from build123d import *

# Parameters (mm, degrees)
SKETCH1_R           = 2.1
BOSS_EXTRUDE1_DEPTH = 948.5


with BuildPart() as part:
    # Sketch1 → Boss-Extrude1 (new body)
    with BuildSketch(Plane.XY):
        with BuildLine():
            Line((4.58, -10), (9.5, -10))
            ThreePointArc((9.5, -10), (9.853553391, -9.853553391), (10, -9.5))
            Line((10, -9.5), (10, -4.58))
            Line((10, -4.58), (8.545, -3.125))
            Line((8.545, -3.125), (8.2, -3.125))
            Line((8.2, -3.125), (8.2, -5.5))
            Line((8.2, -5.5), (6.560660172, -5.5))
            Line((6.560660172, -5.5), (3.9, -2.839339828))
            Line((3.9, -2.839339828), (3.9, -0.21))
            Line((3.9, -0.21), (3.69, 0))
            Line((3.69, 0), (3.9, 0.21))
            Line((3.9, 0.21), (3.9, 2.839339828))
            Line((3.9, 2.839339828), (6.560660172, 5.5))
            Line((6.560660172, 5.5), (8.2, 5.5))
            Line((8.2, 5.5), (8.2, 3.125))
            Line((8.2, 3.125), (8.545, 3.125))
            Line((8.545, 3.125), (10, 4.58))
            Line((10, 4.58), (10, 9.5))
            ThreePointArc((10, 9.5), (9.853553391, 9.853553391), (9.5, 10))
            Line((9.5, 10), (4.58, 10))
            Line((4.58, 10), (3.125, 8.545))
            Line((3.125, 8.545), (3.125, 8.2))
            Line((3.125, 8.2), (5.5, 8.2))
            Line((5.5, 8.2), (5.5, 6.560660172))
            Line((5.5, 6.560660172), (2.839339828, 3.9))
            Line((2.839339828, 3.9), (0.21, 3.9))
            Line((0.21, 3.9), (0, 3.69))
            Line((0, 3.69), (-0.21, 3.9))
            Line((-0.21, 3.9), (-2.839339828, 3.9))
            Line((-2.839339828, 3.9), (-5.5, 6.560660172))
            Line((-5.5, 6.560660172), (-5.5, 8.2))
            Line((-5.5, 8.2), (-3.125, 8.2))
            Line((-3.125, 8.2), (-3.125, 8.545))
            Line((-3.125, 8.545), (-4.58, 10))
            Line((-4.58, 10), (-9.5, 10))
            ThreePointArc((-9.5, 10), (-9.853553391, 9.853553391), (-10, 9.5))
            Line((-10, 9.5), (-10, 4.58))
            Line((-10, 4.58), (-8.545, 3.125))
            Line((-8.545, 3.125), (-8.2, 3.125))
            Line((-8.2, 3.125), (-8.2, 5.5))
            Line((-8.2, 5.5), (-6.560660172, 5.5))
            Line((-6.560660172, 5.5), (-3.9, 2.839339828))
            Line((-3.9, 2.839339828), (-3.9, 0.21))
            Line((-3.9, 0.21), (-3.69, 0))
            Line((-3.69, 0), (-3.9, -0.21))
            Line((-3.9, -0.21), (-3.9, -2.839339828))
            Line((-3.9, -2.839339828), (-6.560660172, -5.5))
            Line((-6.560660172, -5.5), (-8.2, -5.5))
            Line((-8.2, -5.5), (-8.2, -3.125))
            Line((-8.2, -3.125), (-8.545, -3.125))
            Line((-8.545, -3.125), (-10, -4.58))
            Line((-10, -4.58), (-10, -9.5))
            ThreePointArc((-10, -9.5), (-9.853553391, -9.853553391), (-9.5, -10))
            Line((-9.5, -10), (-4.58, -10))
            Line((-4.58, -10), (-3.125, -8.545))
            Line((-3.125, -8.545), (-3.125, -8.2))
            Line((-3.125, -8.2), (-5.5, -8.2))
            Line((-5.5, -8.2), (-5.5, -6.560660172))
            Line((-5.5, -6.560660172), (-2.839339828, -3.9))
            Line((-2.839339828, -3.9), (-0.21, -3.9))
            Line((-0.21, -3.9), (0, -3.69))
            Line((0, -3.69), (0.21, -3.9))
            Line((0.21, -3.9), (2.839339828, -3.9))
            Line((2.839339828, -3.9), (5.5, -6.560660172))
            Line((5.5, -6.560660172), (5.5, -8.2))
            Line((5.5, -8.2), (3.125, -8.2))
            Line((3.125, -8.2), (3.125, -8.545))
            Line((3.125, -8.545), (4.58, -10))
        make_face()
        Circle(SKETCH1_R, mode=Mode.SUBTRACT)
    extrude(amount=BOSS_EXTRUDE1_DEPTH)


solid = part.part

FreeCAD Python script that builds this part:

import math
import FreeCAD as App
import Part
import Sketcher

doc = App.newDocument("Part")
body = doc.addObject("PartDesign::Body", "Body")

sketch1 = doc.addObject("Sketcher::SketchObject", "Sketch")
body.addObject(sketch1)
sketch1.AttachmentSupport = (doc.XY_Plane, [""])
sketch1.MapMode = "FlatFace"
sketch1.addGeometry(Part.LineSegment(App.Vector(4.58, -10, 0), App.Vector(9.5, -10, 0)), False)
sketch1.addGeometry(Part.ArcOfCircle(Part.Circle(App.Vector(9.5, -9.5, 0), App.Vector(0, 0, 1), 0.5), math.radians(-90), math.radians(0)), False)
sketch1.addGeometry(Part.LineSegment(App.Vector(10, -9.5, 0), App.Vector(10, -4.58, 0)), False)
sketch1.addGeometry(Part.LineSegment(App.Vector(10, -4.58, 0), App.Vector(8.54, -3.12, 0)), False)
sketch1.addGeometry(Part.LineSegment(App.Vector(8.54, -3.12, 0), App.Vector(8.2, -3.12, 0)), False)
sketch1.addGeometry(Part.LineSegment(App.Vector(8.2, -3.12, 0), App.Vector(8.2, -5.5, 0)), False)
sketch1.addGeometry(Part.LineSegment(App.Vector(8.2, -5.5, 0), App.Vector(6.56, -5.5, 0)), False)
sketch1.addGeometry(Part.LineSegment(App.Vector(6.56, -5.5, 0), App.Vector(3.9, -2.84, 0)), False)
sketch1.addGeometry(Part.LineSegment(App.Vector(3.9, -2.84, 0), App.Vector(3.9, -0.21, 0)), False)
sketch1.addGeometry(Part.LineSegment(App.Vector(3.9, -0.21, 0), App.Vector(3.69, 0, 0)), False)
sketch1.addGeometry(Part.LineSegment(App.Vector(3.69, 0, 0), App.Vector(3.9, 0.21, 0)), False)
sketch1.addGeometry(Part.LineSegment(App.Vector(3.9, 0.21, 0), App.Vector(3.9, 2.84, 0)), False)
sketch1.addGeometry(Part.LineSegment(App.Vector(3.9, 2.84, 0), App.Vector(6.56, 5.5, 0)), False)
sketch1.addGeometry(Part.LineSegment(App.Vector(6.56, 5.5, 0), App.Vector(8.2, 5.5, 0)), False)
sketch1.addGeometry(Part.LineSegment(App.Vector(8.2, 5.5, 0), App.Vector(8.2, 3.12, 0)), False)
sketch1.addGeometry(Part.LineSegment(App.Vector(8.2, 3.12, 0), App.Vector(8.54, 3.12, 0)), False)
sketch1.addGeometry(Part.LineSegment(App.Vector(8.54, 3.12, 0), App.Vector(10, 4.58, 0)), False)
sketch1.addGeometry(Part.LineSegment(App.Vector(10, 4.58, 0), App.Vector(10, 9.5, 0)), False)
sketch1.addGeometry(Part.ArcOfCircle(Part.Circle(App.Vector(9.5, 9.5, 0), App.Vector(0, 0, 1), 0.5), math.radians(0), math.radians(90)), False)
sketch1.addGeometry(Part.LineSegment(App.Vector(9.5, 10, 0), App.Vector(4.58, 10, 0)), False)
sketch1.addGeometry(Part.LineSegment(App.Vector(4.58, 10, 0), App.Vector(3.12, 8.54, 0)), False)
sketch1.addGeometry(Part.LineSegment(App.Vector(3.12, 8.54, 0), App.Vector(3.12, 8.2, 0)), False)
sketch1.addGeometry(Part.LineSegment(App.Vector(3.12, 8.2, 0), App.Vector(5.5, 8.2, 0)), False)
sketch1.addGeometry(Part.LineSegment(App.Vector(5.5, 8.2, 0), App.Vector(5.5, 6.56, 0)), False)
sketch1.addGeometry(Part.LineSegment(App.Vector(5.5, 6.56, 0), App.Vector(2.84, 3.9, 0)), False)
sketch1.addGeometry(Part.LineSegment(App.Vector(2.84, 3.9, 0), App.Vector(0.21, 3.9, 0)), False)
sketch1.addGeometry(Part.LineSegment(App.Vector(0.21, 3.9, 0), App.Vector(0, 3.69, 0)), False)
sketch1.addGeometry(Part.LineSegment(App.Vector(0, 3.69, 0), App.Vector(-0.21, 3.9, 0)), False)
sketch1.addGeometry(Part.LineSegment(App.Vector(-0.21, 3.9, 0), App.Vector(-2.84, 3.9, 0)), False)
sketch1.addGeometry(Part.LineSegment(App.Vector(-2.84, 3.9, 0), App.Vector(-5.5, 6.56, 0)), False)
sketch1.addGeometry(Part.LineSegment(App.Vector(-5.5, 6.56, 0), App.Vector(-5.5, 8.2, 0)), False)
sketch1.addGeometry(Part.LineSegment(App.Vector(-5.5, 8.2, 0), App.Vector(-3.12, 8.2, 0)), False)
sketch1.addGeometry(Part.LineSegment(App.Vector(-3.12, 8.2, 0), App.Vector(-3.12, 8.54, 0)), False)
sketch1.addGeometry(Part.LineSegment(App.Vector(-3.12, 8.54, 0), App.Vector(-4.58, 10, 0)), False)
sketch1.addGeometry(Part.LineSegment(App.Vector(-4.58, 10, 0), App.Vector(-9.5, 10, 0)), False)
sketch1.addGeometry(Part.ArcOfCircle(Part.Circle(App.Vector(-9.5, 9.5, 0), App.Vector(0, 0, 1), 0.5), math.radians(90), math.radians(180)), False)
sketch1.addGeometry(Part.LineSegment(App.Vector(-10, 9.5, 0), App.Vector(-10, 4.58, 0)), False)
sketch1.addGeometry(Part.LineSegment(App.Vector(-10, 4.58, 0), App.Vector(-8.54, 3.12, 0)), False)
sketch1.addGeometry(Part.LineSegment(App.Vector(-8.54, 3.12, 0), App.Vector(-8.2, 3.12, 0)), False)
sketch1.addGeometry(Part.LineSegment(App.Vector(-8.2, 3.12, 0), App.Vector(-8.2, 5.5, 0)), False)
sketch1.addGeometry(Part.LineSegment(App.Vector(-8.2, 5.5, 0), App.Vector(-6.56, 5.5, 0)), False)
sketch1.addGeometry(Part.LineSegment(App.Vector(-6.56, 5.5, 0), App.Vector(-3.9, 2.84, 0)), False)
sketch1.addGeometry(Part.LineSegment(App.Vector(-3.9, 2.84, 0), App.Vector(-3.9, 0.21, 0)), False)
sketch1.addGeometry(Part.LineSegment(App.Vector(-3.9, 0.21, 0), App.Vector(-3.69, 0, 0)), False)
sketch1.addGeometry(Part.LineSegment(App.Vector(-3.69, 0, 0), App.Vector(-3.9, -0.21, 0)), False)
sketch1.addGeometry(Part.LineSegment(App.Vector(-3.9, -0.21, 0), App.Vector(-3.9, -2.84, 0)), False)
sketch1.addGeometry(Part.LineSegment(App.Vector(-3.9, -2.84, 0), App.Vector(-6.56, -5.5, 0)), False)
sketch1.addGeometry(Part.LineSegment(App.Vector(-6.56, -5.5, 0), App.Vector(-8.2, -5.5, 0)), False)
sketch1.addGeometry(Part.LineSegment(App.Vector(-8.2, -5.5, 0), App.Vector(-8.2, -3.12, 0)), False)
sketch1.addGeometry(Part.LineSegment(App.Vector(-8.2, -3.12, 0), App.Vector(-8.54, -3.12, 0)), False)
sketch1.addGeometry(Part.LineSegment(App.Vector(-8.54, -3.12, 0), App.Vector(-10, -4.58, 0)), False)
sketch1.addGeometry(Part.LineSegment(App.Vector(-10, -4.58, 0), App.Vector(-10, -9.5, 0)), False)
sketch1.addGeometry(Part.ArcOfCircle(Part.Circle(App.Vector(-9.5, -9.5, 0), App.Vector(0, 0, 1), 0.5), math.radians(180), math.radians(270)), False)
sketch1.addGeometry(Part.LineSegment(App.Vector(-9.5, -10, 0), App.Vector(-4.58, -10, 0)), False)
sketch1.addGeometry(Part.LineSegment(App.Vector(-4.58, -10, 0), App.Vector(-3.12, -8.54, 0)), False)
sketch1.addGeometry(Part.LineSegment(App.Vector(-3.12, -8.54, 0), App.Vector(-3.12, -8.2, 0)), False)
sketch1.addGeometry(Part.LineSegment(App.Vector(-3.12, -8.2, 0), App.Vector(-5.5, -8.2, 0)), False)
sketch1.addGeometry(Part.LineSegment(App.Vector(-5.5, -8.2, 0), App.Vector(-5.5, -6.56, 0)), False)
sketch1.addGeometry(Part.LineSegment(App.Vector(-5.5, -6.56, 0), App.Vector(-2.84, -3.9, 0)), False)
sketch1.addGeometry(Part.LineSegment(App.Vector(-2.84, -3.9, 0), App.Vector(-0.21, -3.9, 0)), False)
sketch1.addGeometry(Part.LineSegment(App.Vector(-0.21, -3.9, 0), App.Vector(0, -3.69, 0)), False)
sketch1.addGeometry(Part.LineSegment(App.Vector(0, -3.69, 0), App.Vector(0.21, -3.9, 0)), False)
sketch1.addGeometry(Part.LineSegment(App.Vector(0.21, -3.9, 0), App.Vector(2.84, -3.9, 0)), False)
sketch1.addGeometry(Part.LineSegment(App.Vector(2.84, -3.9, 0), App.Vector(5.5, -6.56, 0)), False)
sketch1.addGeometry(Part.LineSegment(App.Vector(5.5, -6.56, 0), App.Vector(5.5, -8.2, 0)), False)
sketch1.addGeometry(Part.LineSegment(App.Vector(5.5, -8.2, 0), App.Vector(3.12, -8.2, 0)), False)
sketch1.addGeometry(Part.LineSegment(App.Vector(3.12, -8.2, 0), App.Vector(3.12, -8.54, 0)), False)
sketch1.addGeometry(Part.LineSegment(App.Vector(3.12, -8.54, 0), App.Vector(4.58, -10, 0)), False)
sketch1.addGeometry(Part.Circle(App.Vector(0, 0, 0), App.Vector(0, 0, 1), 2.1), False)
sketch1.addConstraint(Sketcher.Constraint("Tangent", 0, 2, 1, 1))
sketch1.addConstraint(Sketcher.Constraint("Tangent", 1, 2, 2, 1))
sketch1.addConstraint(Sketcher.Constraint("Coincident", 2, 2, 3, 1))
sketch1.addConstraint(Sketcher.Constraint("Coincident", 3, 2, 4, 1))
sketch1.addConstraint(Sketcher.Constraint("Coincident", 4, 2, 5, 1))
sketch1.addConstraint(Sketcher.Constraint("Coincident", 5, 2, 6, 1))
sketch1.addConstraint(Sketcher.Constraint("Coincident", 6, 2, 7, 1))
sketch1.addConstraint(Sketcher.Constraint("Coincident", 7, 2, 8, 1))
sketch1.addConstraint(Sketcher.Constraint("Coincident", 8, 2, 9, 1))
sketch1.addConstraint(Sketcher.Constraint("Coincident", 9, 2, 10, 1))
sketch1.addConstraint(Sketcher.Constraint("Coincident", 10, 2, 11, 1))
sketch1.addConstraint(Sketcher.Constraint("Coincident", 11, 2, 12, 1))
sketch1.addConstraint(Sketcher.Constraint("Coincident", 12, 2, 13, 1))
sketch1.addConstraint(Sketcher.Constraint("Coincident", 13, 2, 14, 1))
sketch1.addConstraint(Sketcher.Constraint("Coincident", 14, 2, 15, 1))
sketch1.addConstraint(Sketcher.Constraint("Coincident", 15, 2, 16, 1))
sketch1.addConstraint(Sketcher.Constraint("Coincident", 16, 2, 17, 1))
sketch1.addConstraint(Sketcher.Constraint("Tangent", 17, 2, 18, 1))
sketch1.addConstraint(Sketcher.Constraint("Tangent", 18, 2, 19, 1))
sketch1.addConstraint(Sketcher.Constraint("Coincident", 19, 2, 20, 1))
sketch1.addConstraint(Sketcher.Constraint("Coincident", 20, 2, 21, 1))
sketch1.addConstraint(Sketcher.Constraint("Coincident", 21, 2, 22, 1))
sketch1.addConstraint(Sketcher.Constraint("Coincident", 22, 2, 23, 1))
sketch1.addConstraint(Sketcher.Constraint("Coincident", 23, 2, 24, 1))
sketch1.addConstraint(Sketcher.Constraint("Coincident", 24, 2, 25, 1))
sketch1.addConstraint(Sketcher.Constraint("Coincident", 25, 2, 26, 1))
sketch1.addConstraint(Sketcher.Constraint("Coincident", 26, 2, 27, 1))
sketch1.addConstraint(Sketcher.Constraint("Coincident", 27, 2, 28, 1))
sketch1.addConstraint(Sketcher.Constraint("Coincident", 28, 2, 29, 1))
sketch1.addConstraint(Sketcher.Constraint("Coincident", 29, 2, 30, 1))
sketch1.addConstraint(Sketcher.Constraint("Coincident", 30, 2, 31, 1))
sketch1.addConstraint(Sketcher.Constraint("Coincident", 31, 2, 32, 1))
sketch1.addConstraint(Sketcher.Constraint("Coincident", 32, 2, 33, 1))
sketch1.addConstraint(Sketcher.Constraint("Coincident", 33, 2, 34, 1))
sketch1.addConstraint(Sketcher.Constraint("Tangent", 34, 2, 35, 1))
sketch1.addConstraint(Sketcher.Constraint("Tangent", 35, 2, 36, 1))
sketch1.addConstraint(Sketcher.Constraint("Coincident", 36, 2, 37, 1))
sketch1.addConstraint(Sketcher.Constraint("Coincident", 37, 2, 38, 1))
sketch1.addConstraint(Sketcher.Constraint("Coincident", 38, 2, 39, 1))
sketch1.addConstraint(Sketcher.Constraint("Coincident", 39, 2, 40, 1))
sketch1.addConstraint(Sketcher.Constraint("Coincident", 40, 2, 41, 1))
sketch1.addConstraint(Sketcher.Constraint("Coincident", 41, 2, 42, 1))
sketch1.addConstraint(Sketcher.Constraint("Coincident", 42, 2, 43, 1))
sketch1.addConstraint(Sketcher.Constraint("Coincident", 43, 2, 44, 1))
sketch1.addConstraint(Sketcher.Constraint("Coincident", 44, 2, 45, 1))
sketch1.addConstraint(Sketcher.Constraint("Coincident", 45, 2, 46, 1))
sketch1.addConstraint(Sketcher.Constraint("Coincident", 46, 2, 47, 1))
sketch1.addConstraint(Sketcher.Constraint("Coincident", 47, 2, 48, 1))
sketch1.addConstraint(Sketcher.Constraint("Coincident", 48, 2, 49, 1))
sketch1.addConstraint(Sketcher.Constraint("Coincident", 49, 2, 50, 1))
sketch1.addConstraint(Sketcher.Constraint("Coincident", 50, 2, 51, 1))
sketch1.addConstraint(Sketcher.Constraint("Tangent", 51, 2, 52, 1))
sketch1.addConstraint(Sketcher.Constraint("Tangent", 52, 2, 53, 1))
sketch1.addConstraint(Sketcher.Constraint("Coincident", 53, 2, 54, 1))
sketch1.addConstraint(Sketcher.Constraint("Coincident", 54, 2, 55, 1))
sketch1.addConstraint(Sketcher.Constraint("Coincident", 55, 2, 56, 1))
sketch1.addConstraint(Sketcher.Constraint("Coincident", 56, 2, 57, 1))
sketch1.addConstraint(Sketcher.Constraint("Coincident", 57, 2, 58, 1))
sketch1.addConstraint(Sketcher.Constraint("Coincident", 58, 2, 59, 1))
sketch1.addConstraint(Sketcher.Constraint("Coincident", 59, 2, 60, 1))
sketch1.addConstraint(Sketcher.Constraint("Coincident", 60, 2, 61, 1))
sketch1.addConstraint(Sketcher.Constraint("Coincident", 61, 2, 62, 1))
sketch1.addConstraint(Sketcher.Constraint("Coincident", 62, 2, 63, 1))
sketch1.addConstraint(Sketcher.Constraint("Coincident", 63, 2, 64, 1))
sketch1.addConstraint(Sketcher.Constraint("Coincident", 64, 2, 65, 1))
sketch1.addConstraint(Sketcher.Constraint("Coincident", 65, 2, 66, 1))
sketch1.addConstraint(Sketcher.Constraint("Coincident", 66, 2, 67, 1))
sketch1.addConstraint(Sketcher.Constraint("Coincident", 67, 2, 0, 1))
sketch1.addConstraint(Sketcher.Constraint("Horizontal", 0))
sketch1.addConstraint(Sketcher.Constraint("Vertical", 2))
sketch1.addConstraint(Sketcher.Constraint("Horizontal", 4))
sketch1.addConstraint(Sketcher.Constraint("Vertical", 5))
sketch1.addConstraint(Sketcher.Constraint("Horizontal", 6))
sketch1.addConstraint(Sketcher.Constraint("Vertical", 8))
sketch1.addConstraint(Sketcher.Constraint("Vertical", 11))
sketch1.addConstraint(Sketcher.Constraint("Horizontal", 13))
sketch1.addConstraint(Sketcher.Constraint("Vertical", 14))
sketch1.addConstraint(Sketcher.Constraint("Horizontal", 15))
sketch1.addConstraint(Sketcher.Constraint("Vertical", 17))
sketch1.addConstraint(Sketcher.Constraint("Horizontal", 19))
sketch1.addConstraint(Sketcher.Constraint("Vertical", 21))
sketch1.addConstraint(Sketcher.Constraint("Horizontal", 22))
sketch1.addConstraint(Sketcher.Constraint("Vertical", 23))
sketch1.addConstraint(Sketcher.Constraint("Horizontal", 25))
sketch1.addConstraint(Sketcher.Constraint("Horizontal", 28))
sketch1.addConstraint(Sketcher.Constraint("Vertical", 30))
sketch1.addConstraint(Sketcher.Constraint("Horizontal", 31))
sketch1.addConstraint(Sketcher.Constraint("Vertical", 32))
sketch1.addConstraint(Sketcher.Constraint("Horizontal", 34))
sketch1.addConstraint(Sketcher.Constraint("Vertical", 36))
sketch1.addConstraint(Sketcher.Constraint("Horizontal", 38))
sketch1.addConstraint(Sketcher.Constraint("Vertical", 39))
sketch1.addConstraint(Sketcher.Constraint("Horizontal", 40))
sketch1.addConstraint(Sketcher.Constraint("Vertical", 42))
sketch1.addConstraint(Sketcher.Constraint("Vertical", 45))
sketch1.addConstraint(Sketcher.Constraint("Horizontal", 47))
sketch1.addConstraint(Sketcher.Constraint("Vertical", 48))
sketch1.addConstraint(Sketcher.Constraint("Horizontal", 49))
sketch1.addConstraint(Sketcher.Constraint("Vertical", 51))
sketch1.addConstraint(Sketcher.Constraint("Horizontal", 53))
sketch1.addConstraint(Sketcher.Constraint("Vertical", 55))
sketch1.addConstraint(Sketcher.Constraint("Horizontal", 56))
sketch1.addConstraint(Sketcher.Constraint("Vertical", 57))
sketch1.addConstraint(Sketcher.Constraint("Horizontal", 59))
sketch1.addConstraint(Sketcher.Constraint("Horizontal", 62))
sketch1.addConstraint(Sketcher.Constraint("Vertical", 64))
sketch1.addConstraint(Sketcher.Constraint("Horizontal", 65))
sketch1.addConstraint(Sketcher.Constraint("Vertical", 66))
sketch1.addConstraint(Sketcher.Constraint("Coincident", 68, 3, -1, 1))
sketch1.addConstraint(Sketcher.Constraint("Equal", 1, 18))
sketch1.addConstraint(Sketcher.Constraint("Equal", 18, 35))
sketch1.addConstraint(Sketcher.Constraint("Equal", 35, 52))
sketch1.addConstraint(Sketcher.Constraint("Symmetric", 1, 3, 35, 3, -1, 1))
sketch1.addConstraint(Sketcher.Constraint("Symmetric", 18, 3, 52, 3, -1, 1))
sketch1.addConstraint(Sketcher.Constraint("Symmetric", 3, 2, 37, 2, -1, 1))
sketch1.addConstraint(Sketcher.Constraint("Symmetric", 5, 2, 39, 2, -1, 1))
sketch1.addConstraint(Sketcher.Constraint("Symmetric", 7, 2, 41, 2, -1, 1))
sketch1.addConstraint(Sketcher.Constraint("Symmetric", 9, 2, 43, 2, -1, 1))
sketch1.addConstraint(Sketcher.Constraint("Symmetric", 10, 2, 44, 2, -1, 1))
sketch1.addConstraint(Sketcher.Constraint("Symmetric", 12, 2, 46, 2, -1, 1))
sketch1.addConstraint(Sketcher.Constraint("Symmetric", 14, 2, 48, 2, -1, 1))
sketch1.addConstraint(Sketcher.Constraint("Symmetric", 20, 2, 54, 2, -1, 1))
sketch1.addConstraint(Sketcher.Constraint("Symmetric", 22, 2, 56, 2, -1, 1))
sketch1.addConstraint(Sketcher.Constraint("Symmetric", 24, 2, 58, 2, -1, 1))
sketch1.addConstraint(Sketcher.Constraint("Symmetric", 26, 2, 60, 2, -1, 1))
sketch1.addConstraint(Sketcher.Constraint("Symmetric", 27, 2, 61, 2, -1, 1))
sketch1.addConstraint(Sketcher.Constraint("Symmetric", 29, 2, 63, 2, -1, 1))
sketch1.addConstraint(Sketcher.Constraint("Symmetric", 31, 2, 65, 2, -1, 1))
sketch1.addConstraint(Sketcher.Constraint("Symmetric", 18, 3, 35, 3, -2))
sketch1.addConstraint(Sketcher.Constraint("Symmetric", 25, 2, 27, 2, -2))
sketch1.addConstraint(Sketcher.Constraint("Symmetric", 23, 2, 29, 2, -2))
sketch1.addConstraint(Sketcher.Constraint("Symmetric", 21, 2, 31, 2, -2))
sketch1.addConstraint(Sketcher.Constraint("Symmetric", 15, 2, 37, 2, -2))
sketch1.addConstraint(Sketcher.Constraint("Symmetric", 13, 2, 39, 2, -2))
sketch1.addConstraint(Sketcher.Constraint("Symmetric", 11, 2, 41, 2, -2))
sketch1.addConstraint(Sketcher.Constraint("PointOnObject", 9, 2, -1))
sketch1.addConstraint(Sketcher.Constraint("PointOnObject", 26, 2, -2))
sketch1.addConstraint(Sketcher.Constraint("Parallel", 3, 7))
sketch1.addConstraint(Sketcher.Constraint("Parallel", 7, 9))
sketch1.addConstraint(Sketcher.Constraint("Perpendicular", 9, 10))
sketch1.addConstraint(Sketcher.Constraint("Parallel", 10, 12))
sketch1.addConstraint(Sketcher.Constraint("Parallel", 12, 16))
sketch1.addConstraint(Sketcher.Constraint("Parallel", 16, 20))
sketch1.addConstraint(Sketcher.Constraint("Parallel", 20, 24))
sketch1.addConstraint(Sketcher.Constraint("Parallel", 24, 26))
sketch1.addConstraint(Sketcher.Constraint("Perpendicular", 26, 27))
sketch1.addConstraint(Sketcher.Constraint("Parallel", 27, 29))
sketch1.addConstraint(Sketcher.Constraint("Parallel", 29, 33))
sketch1.addConstraint(Sketcher.Constraint("Parallel", 33, 37))
sketch1.addConstraint(Sketcher.Constraint("Parallel", 37, 41))
sketch1.addConstraint(Sketcher.Constraint("Parallel", 41, 43))
sketch1.addConstraint(Sketcher.Constraint("Parallel", 44, 46))
sketch1.addConstraint(Sketcher.Constraint("Parallel", 46, 50))
sketch1.addConstraint(Sketcher.Constraint("Parallel", 50, 54))
sketch1.addConstraint(Sketcher.Constraint("Parallel", 54, 58))
sketch1.addConstraint(Sketcher.Constraint("Parallel", 58, 60))
sketch1.addConstraint(Sketcher.Constraint("Parallel", 61, 63))
sketch1.addConstraint(Sketcher.Constraint("Parallel", 63, 67))
sketch1.addConstraint(Sketcher.Constraint("Horizontal", 20, 2, 32, 2))
sketch1.addConstraint(Sketcher.Constraint("Horizontal", 2, 2, 50, 2))
sketch1.addConstraint(Sketcher.Constraint("Horizontal", 54, 2, 66, 2))
sketch1.addConstraint(Sketcher.Constraint("Equal", 53, 2))
sketch1.addConstraint(Sketcher.Constraint("Equal", 65, 5))
sketch1.addConstraint(Sketcher.Constraint("Equal", 62, 8))
sketch1.addConstraint(Sketcher.Constraint("Equal", 49, 21))
sketch1.addConstraint(Sketcher.Constraint("Equal", 47, 23))
sketch1.addConstraint(Sketcher.Constraint("Equal", 16, 20))
sketch1.addConstraint(Sketcher.Constraint("Equal", 12, 24))
sketch1.addConstraint(Sketcher.Constraint("Equal", 10, 26))
sketch1.addConstraint(Sketcher.Constraint("Diameter", 68, 4.2))
sketch1.addConstraint(Sketcher.Constraint("Radius", 1, 0.5))
sketch1.addConstraint(Sketcher.Constraint("DistanceY", 0, 2, -1, 1, 10.0))
sketch1.addConstraint(Sketcher.Constraint("DistanceX", 0, 1, 0, 2, 4.92))
sketch1.addConstraint(Sketcher.Constraint("DistanceX", -1, 1, 4, 2, 8.2))
sketch1.addConstraint(Sketcher.Constraint("DistanceY", 5, 2, -1, 1, 5.5))
sketch1.addConstraint(Sketcher.Constraint("DistanceX", -1, 1, 7, 2, 3.9))
sketch1.addConstraint(Sketcher.Constraint("DistanceX", 4, 2, 4, 1, 0.345))
sketch1.addConstraint(Sketcher.Constraint("DistanceY", 8, 2, -1, 1, 0.21))
sketch1.addConstraint(Sketcher.Constraint("DistanceX", 6, 2, 6, 1, 1.63934))
pad1 = doc.addObject("PartDesign::Pad", "Pad")
body.addObject(pad1)
pad1.Profile = sketch1
pad1.Length = 948.5

doc.recompute()
